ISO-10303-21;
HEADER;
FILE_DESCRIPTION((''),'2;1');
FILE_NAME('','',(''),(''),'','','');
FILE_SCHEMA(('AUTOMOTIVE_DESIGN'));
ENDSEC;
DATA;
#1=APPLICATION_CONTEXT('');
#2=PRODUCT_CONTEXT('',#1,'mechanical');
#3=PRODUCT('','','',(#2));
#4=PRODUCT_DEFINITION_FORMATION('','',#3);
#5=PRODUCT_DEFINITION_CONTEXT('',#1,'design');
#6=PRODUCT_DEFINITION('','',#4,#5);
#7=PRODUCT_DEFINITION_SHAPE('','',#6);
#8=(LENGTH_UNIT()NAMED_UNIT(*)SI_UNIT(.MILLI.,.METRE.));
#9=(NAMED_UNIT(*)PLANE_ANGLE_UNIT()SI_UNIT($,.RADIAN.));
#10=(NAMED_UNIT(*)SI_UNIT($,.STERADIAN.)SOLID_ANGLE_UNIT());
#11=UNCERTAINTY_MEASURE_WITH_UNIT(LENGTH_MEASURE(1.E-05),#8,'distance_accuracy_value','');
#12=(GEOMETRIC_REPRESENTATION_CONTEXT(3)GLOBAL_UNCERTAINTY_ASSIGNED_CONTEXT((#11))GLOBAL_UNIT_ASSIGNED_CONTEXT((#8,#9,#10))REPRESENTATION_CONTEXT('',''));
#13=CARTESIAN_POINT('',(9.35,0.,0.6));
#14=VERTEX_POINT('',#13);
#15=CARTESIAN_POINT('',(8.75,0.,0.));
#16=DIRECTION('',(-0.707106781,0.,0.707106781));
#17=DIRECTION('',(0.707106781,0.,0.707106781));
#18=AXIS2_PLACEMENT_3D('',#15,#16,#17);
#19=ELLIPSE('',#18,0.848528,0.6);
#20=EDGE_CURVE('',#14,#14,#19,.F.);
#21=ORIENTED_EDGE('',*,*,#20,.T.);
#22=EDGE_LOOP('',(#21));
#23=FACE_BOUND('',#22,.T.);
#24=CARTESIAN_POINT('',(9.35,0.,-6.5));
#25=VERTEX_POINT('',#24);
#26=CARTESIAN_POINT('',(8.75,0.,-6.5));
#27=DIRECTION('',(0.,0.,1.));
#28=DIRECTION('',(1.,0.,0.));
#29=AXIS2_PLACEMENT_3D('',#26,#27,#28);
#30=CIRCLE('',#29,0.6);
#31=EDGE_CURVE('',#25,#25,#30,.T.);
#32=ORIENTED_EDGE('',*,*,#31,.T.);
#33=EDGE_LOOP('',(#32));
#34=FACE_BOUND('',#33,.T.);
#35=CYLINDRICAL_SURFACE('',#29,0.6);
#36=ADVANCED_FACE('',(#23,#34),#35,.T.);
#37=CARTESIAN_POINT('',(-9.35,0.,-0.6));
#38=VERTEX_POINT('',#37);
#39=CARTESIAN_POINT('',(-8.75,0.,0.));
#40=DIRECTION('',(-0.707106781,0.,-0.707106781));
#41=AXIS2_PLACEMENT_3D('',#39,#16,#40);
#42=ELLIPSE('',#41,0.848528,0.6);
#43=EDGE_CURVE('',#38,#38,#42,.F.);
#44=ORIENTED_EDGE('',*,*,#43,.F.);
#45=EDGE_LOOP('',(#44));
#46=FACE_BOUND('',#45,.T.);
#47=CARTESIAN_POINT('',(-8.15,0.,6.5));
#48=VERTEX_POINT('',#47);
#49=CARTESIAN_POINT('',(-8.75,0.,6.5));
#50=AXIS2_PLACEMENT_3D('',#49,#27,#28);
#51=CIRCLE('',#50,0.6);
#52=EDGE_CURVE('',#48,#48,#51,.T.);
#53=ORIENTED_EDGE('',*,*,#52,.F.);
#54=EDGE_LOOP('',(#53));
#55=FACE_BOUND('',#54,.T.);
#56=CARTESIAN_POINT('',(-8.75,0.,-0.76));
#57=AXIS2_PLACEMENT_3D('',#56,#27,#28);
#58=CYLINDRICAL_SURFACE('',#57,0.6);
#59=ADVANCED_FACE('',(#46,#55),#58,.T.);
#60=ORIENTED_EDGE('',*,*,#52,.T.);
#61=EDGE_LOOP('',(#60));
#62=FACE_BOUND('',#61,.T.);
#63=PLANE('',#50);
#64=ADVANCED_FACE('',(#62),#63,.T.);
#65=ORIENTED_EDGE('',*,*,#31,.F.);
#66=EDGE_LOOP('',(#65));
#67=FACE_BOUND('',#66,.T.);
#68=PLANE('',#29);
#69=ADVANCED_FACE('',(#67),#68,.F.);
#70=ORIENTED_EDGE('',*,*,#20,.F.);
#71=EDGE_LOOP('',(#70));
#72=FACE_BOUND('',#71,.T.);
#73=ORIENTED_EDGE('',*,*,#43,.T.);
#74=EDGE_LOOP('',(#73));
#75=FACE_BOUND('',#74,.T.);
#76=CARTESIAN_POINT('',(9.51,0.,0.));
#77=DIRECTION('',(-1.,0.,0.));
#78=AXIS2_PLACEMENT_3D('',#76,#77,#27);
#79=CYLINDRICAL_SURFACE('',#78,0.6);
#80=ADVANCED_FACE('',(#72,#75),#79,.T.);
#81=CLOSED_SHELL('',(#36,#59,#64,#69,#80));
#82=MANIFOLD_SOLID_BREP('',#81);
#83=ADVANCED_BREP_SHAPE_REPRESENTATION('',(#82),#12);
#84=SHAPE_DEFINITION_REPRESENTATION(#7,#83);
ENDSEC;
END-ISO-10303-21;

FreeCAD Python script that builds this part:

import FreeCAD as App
import Part
import Sketcher

V = App.Vector
Q = App.Units.Quantity

doc = App.newDocument("Part")
body = doc.addObject("PartDesign::Body", "Body")

sketch1 = doc.addObject("Sketcher::SketchObject", "Sketch")
body.addObject(sketch1)
sketch1.AttachmentSupport = (doc.XY_Plane, [""])
sketch1.MapMode = "FlatFace"
sketch1.AttachmentOffset = App.Placement(V(0, 0, 6.5), App.Rotation())
sketch1.addGeometry(Part.Circle(V(-8.8, 0, 0), V(0, 0, 1), 0.6), False)
sketch1.addConstraint([
    Sketcher.Constraint("PointOnObject", 0, 3, -1),
    Sketcher.Constraint("Diameter", 0, Q("1.2 mm")),
    Sketcher.Constraint("DistanceX", 0, 3, -1, 1, Q("8.75 mm")),
])

sketch2 = doc.addObject("Sketcher::SketchObject", "Sketch001")
body.addObject(sketch2)
sketch2.AttachmentSupport = (doc.XZ_Plane, [""])
sketch2.MapMode = "FlatFace"
sketch2.addGeometry([
    Part.LineSegment(V(9, -6, 0), V(9, 0, 0)),
    Part.LineSegment(V(9, 0, 0), V(-9, 0, 0)),
    Part.LineSegment(V(-9, 0, 0), V(-9, 6, 0)),
], False)
sketch2.addConstraint([
    Sketcher.Constraint("Coincident", 0, 2, 1, 1),
    Sketcher.Constraint("Coincident", 1, 2, 2, 1),
    Sketcher.Constraint("Vertical", 0),
    Sketcher.Constraint("Horizontal", 1),
    Sketcher.Constraint("Vertical", 2),
    Sketcher.Constraint("Symmetric", 0, 2, 1, 2, -1, 1),
    Sketcher.Constraint("Equal", 0, 2),
    Sketcher.Constraint("DistanceX", 1, 2, 1, 1, Q("17.5 mm")),
    Sketcher.Constraint("DistanceY", 0, 1, 0, 2, Q("6.5 mm")),
])
doc.recompute()

additivepipe = doc.addObject("PartDesign::AdditivePipe", "AdditivePipe")
body.addObject(additivepipe)
additivepipe.Profile = sketch1
additivepipe.Spine = (sketch2, ["Edge1", "Edge2", "Edge3"])
additivepipe.Transition = "Right corner"

doc.recompute()
